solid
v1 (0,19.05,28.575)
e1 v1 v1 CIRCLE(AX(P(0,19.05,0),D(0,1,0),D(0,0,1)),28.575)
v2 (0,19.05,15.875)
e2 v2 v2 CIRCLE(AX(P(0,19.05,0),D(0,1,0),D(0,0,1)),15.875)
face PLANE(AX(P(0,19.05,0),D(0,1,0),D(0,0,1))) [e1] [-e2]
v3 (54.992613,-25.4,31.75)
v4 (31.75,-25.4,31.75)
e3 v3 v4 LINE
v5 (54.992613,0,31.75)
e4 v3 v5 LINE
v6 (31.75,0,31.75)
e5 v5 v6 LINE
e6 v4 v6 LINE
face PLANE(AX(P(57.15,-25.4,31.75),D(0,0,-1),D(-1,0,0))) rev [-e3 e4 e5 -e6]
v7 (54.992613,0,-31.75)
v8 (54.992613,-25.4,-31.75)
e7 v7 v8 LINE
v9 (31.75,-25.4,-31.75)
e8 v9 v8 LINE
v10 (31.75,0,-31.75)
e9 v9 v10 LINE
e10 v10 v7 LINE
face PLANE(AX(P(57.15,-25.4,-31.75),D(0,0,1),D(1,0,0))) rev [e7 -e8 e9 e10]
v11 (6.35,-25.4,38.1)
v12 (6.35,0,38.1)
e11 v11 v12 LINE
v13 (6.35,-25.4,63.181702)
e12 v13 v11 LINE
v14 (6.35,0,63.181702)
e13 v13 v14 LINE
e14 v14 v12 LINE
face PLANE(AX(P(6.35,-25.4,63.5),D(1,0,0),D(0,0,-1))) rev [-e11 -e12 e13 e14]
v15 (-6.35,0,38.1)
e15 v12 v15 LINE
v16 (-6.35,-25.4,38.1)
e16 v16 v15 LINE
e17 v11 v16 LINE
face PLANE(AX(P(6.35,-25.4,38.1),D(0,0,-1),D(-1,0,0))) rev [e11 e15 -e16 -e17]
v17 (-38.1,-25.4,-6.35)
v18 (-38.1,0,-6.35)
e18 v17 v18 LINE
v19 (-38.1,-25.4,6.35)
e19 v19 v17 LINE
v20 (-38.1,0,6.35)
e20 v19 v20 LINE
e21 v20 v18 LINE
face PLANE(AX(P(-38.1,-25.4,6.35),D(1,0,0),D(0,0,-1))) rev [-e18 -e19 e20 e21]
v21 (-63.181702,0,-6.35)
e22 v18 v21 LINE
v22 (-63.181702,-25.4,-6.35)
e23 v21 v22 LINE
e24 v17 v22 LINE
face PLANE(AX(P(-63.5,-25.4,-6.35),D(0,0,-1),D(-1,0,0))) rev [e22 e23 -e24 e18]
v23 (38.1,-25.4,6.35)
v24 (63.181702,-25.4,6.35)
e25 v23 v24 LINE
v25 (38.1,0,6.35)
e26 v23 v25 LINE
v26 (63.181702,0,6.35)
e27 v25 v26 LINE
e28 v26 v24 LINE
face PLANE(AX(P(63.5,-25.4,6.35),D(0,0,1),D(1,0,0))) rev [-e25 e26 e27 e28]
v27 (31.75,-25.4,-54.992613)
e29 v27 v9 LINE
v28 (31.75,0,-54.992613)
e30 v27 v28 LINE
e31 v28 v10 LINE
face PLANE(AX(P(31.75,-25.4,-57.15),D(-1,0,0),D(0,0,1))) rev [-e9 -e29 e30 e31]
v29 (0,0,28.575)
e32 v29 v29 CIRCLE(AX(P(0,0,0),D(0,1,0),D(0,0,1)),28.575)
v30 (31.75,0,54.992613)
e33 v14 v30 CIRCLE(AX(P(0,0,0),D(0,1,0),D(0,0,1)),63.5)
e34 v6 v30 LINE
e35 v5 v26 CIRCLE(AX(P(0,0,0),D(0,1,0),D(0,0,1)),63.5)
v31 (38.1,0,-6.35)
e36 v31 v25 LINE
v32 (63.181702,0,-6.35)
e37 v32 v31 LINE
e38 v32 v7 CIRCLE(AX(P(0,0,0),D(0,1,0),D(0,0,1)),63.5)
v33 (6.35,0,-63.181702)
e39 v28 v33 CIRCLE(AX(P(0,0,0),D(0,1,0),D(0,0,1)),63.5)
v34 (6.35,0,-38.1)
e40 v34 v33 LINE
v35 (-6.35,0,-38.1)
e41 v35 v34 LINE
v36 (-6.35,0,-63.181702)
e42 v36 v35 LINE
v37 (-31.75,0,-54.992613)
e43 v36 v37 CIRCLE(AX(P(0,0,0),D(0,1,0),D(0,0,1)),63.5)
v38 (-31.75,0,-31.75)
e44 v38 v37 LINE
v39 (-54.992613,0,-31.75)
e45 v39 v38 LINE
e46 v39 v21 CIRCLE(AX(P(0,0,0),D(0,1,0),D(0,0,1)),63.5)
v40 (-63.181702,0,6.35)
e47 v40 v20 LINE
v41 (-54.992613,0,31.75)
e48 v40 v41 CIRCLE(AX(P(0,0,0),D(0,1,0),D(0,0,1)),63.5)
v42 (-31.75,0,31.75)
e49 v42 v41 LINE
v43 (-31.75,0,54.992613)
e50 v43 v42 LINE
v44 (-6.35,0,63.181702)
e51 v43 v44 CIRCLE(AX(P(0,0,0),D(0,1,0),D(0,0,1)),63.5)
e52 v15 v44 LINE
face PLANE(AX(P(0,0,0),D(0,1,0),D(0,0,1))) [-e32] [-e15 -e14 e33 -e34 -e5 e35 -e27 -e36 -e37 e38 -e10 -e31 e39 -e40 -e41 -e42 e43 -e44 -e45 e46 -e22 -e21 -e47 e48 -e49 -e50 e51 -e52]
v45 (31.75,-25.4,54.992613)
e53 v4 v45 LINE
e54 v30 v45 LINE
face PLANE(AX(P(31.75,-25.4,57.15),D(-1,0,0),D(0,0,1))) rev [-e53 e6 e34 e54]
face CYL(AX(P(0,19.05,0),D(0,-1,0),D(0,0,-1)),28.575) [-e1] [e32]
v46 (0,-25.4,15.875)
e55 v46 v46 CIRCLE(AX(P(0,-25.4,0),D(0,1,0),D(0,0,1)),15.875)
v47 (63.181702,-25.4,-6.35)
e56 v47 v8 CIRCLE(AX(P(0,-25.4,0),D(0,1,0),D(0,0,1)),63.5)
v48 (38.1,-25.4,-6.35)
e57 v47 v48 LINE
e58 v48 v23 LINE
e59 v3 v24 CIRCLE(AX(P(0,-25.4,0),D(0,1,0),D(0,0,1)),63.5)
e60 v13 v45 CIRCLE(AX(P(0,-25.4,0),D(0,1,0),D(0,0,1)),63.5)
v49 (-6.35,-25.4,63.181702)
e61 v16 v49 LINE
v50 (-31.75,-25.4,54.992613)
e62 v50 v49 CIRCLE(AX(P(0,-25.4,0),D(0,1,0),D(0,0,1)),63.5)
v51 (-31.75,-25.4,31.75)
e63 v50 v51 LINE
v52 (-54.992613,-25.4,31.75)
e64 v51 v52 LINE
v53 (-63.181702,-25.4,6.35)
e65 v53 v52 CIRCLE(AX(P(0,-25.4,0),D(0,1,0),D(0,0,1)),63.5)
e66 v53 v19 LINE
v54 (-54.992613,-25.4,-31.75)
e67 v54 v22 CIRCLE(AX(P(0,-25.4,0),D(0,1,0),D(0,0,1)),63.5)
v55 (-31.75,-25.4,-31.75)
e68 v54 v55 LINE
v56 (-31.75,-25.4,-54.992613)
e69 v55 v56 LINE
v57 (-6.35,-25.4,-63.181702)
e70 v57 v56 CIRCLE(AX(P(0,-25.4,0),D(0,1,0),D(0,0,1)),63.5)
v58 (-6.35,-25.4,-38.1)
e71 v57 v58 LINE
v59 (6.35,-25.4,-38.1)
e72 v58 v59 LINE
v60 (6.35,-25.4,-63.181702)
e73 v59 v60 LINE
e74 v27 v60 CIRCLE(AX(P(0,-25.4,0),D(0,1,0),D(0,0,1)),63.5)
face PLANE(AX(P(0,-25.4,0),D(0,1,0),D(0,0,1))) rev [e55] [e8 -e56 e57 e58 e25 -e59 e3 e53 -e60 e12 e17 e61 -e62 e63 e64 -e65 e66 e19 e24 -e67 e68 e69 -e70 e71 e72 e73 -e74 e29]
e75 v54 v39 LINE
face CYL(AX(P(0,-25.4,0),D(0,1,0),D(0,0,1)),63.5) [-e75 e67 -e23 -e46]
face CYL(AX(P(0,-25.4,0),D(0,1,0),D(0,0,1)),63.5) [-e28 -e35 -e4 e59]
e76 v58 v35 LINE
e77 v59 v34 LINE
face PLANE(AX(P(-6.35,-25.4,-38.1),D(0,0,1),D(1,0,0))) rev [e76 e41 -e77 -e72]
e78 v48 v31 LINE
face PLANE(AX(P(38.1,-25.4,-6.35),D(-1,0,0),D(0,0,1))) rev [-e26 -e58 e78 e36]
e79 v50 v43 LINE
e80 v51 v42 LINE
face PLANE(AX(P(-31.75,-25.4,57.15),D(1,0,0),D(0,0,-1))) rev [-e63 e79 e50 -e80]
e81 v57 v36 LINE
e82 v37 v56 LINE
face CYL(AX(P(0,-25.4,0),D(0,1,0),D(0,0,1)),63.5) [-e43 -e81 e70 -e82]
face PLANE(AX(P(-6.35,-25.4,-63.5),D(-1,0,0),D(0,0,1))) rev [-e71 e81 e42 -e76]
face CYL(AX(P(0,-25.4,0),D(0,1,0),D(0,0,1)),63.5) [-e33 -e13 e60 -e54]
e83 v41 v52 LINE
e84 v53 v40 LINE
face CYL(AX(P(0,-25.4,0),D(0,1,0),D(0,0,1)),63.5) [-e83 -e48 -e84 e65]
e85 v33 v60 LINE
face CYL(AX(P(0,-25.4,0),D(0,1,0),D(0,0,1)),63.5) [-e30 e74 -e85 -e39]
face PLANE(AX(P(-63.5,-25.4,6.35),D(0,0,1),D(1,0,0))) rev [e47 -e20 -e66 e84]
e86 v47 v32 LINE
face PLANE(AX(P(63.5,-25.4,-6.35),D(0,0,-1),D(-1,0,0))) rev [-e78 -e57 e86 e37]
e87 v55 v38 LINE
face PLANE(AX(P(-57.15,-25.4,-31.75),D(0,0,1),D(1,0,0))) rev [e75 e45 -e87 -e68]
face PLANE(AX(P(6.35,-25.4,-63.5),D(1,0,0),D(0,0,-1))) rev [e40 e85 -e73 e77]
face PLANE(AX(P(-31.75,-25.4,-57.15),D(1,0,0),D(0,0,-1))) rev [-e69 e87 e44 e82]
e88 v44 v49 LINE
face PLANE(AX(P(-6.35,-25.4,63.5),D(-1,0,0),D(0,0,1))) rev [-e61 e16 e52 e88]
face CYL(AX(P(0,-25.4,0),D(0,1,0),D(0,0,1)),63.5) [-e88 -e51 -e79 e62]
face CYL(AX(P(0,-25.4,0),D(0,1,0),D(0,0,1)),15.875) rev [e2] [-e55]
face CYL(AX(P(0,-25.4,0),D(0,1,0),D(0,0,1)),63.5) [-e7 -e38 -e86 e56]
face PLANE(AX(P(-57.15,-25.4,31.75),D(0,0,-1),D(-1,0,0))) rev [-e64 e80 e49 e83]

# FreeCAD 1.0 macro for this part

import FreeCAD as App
import Part
import Sketcher
from FreeCAD import Vector
Q = App.Units.Quantity

doc = App.newDocument("Part")
body = doc.addObject("PartDesign::Body", "Body")

# Sketch on XZ plane
sketch1 = body.newObject("Sketcher::SketchObject", "Sketch")
sketch1.AttachmentSupport = (doc.getObject("XZ_Plane"), [""])
sketch1.MapMode = "FlatFace"
sketch1.addGeometry(Part.Circle(Vector(0, 0, 0), Vector(0, 0, 1), 64), False)
sketch1.addConstraint([
    Sketcher.Constraint("Coincident", 0, 3, -1, 1),
    Sketcher.Constraint("Diameter", 0, Q("5 in")),
])
pad1 = body.newObject("PartDesign::Pad", "Pad")
pad1.Profile = sketch1
pad1.Length = Q("1 in")

# Sketch on XZ plane
sketch2 = body.newObject("Sketcher::SketchObject", "Sketch001")
sketch2.AttachmentSupport = (doc.getObject("XZ_Plane"), [""])
sketch2.MapMode = "FlatFace"
sketch2.addGeometry(Part.Circle(Vector(0, 0, 0), Vector(0, 0, 1), 29), False)
sketch2.addConstraint([
    Sketcher.Constraint("Coincident", 0, 3, -1, 1),
    Sketcher.Constraint("Diameter", 0, Q("2.25 in")),
])
pad2 = body.newObject("PartDesign::Pad", "Pad001")
pad2.Profile = sketch2
pad2.Length = Q("0.75 in")
pad2.Reversed = True

# Sketch on XZ plane
sketch3 = body.newObject("Sketcher::SketchObject", "Sketch002")
sketch3.AttachmentSupport = (doc.getObject("XZ_Plane"), [""])
sketch3.MapMode = "FlatFace"
sketch3.addGeometry([
    Part.LineSegment(Vector(38, -6, 0), Vector(38, 6, 0)),  # 0
    Part.LineSegment(Vector(38, 6, 0), Vector(64, 6, 0)),  # 1
    Part.LineSegment(Vector(64, 6, 0), Vector(64, -6, 0)),  # 2
    Part.LineSegment(Vector(64, -6, 0), Vector(38, -6, 0)),  # 3
    Part.LineSegment(Vector(-6, -64, 0), Vector(-6, -38, 0)),  # 4
    Part.LineSegment(Vector(-6, -38, 0), Vector(6, -38, 0)),  # 5
    Part.LineSegment(Vector(6, -38, 0), Vector(6, -64, 0)),  # 6
    Part.LineSegment(Vector(6, -64, 0), Vector(-6, -64, 0)),  # 7
    Part.LineSegment(Vector(-6, 38, 0), Vector(-6, 64, 0)),  # 8
    Part.LineSegment(Vector(-6, 64, 0), Vector(6, 64, 0)),  # 9
    Part.LineSegment(Vector(6, 64, 0), Vector(6, 38, 0)),  # 10
    Part.LineSegment(Vector(6, 38, 0), Vector(-6, 38, 0)),  # 11
    Part.LineSegment(Vector(-64, -6, 0), Vector(-64, 6, 0)),  # 12
    Part.LineSegment(Vector(-64, 6, 0), Vector(-38, 6, 0)),  # 13
    Part.LineSegment(Vector(-38, 6, 0), Vector(-38, -6, 0)),  # 14
    Part.LineSegment(Vector(-38, -6, 0), Vector(-64, -6, 0)),  # 15
], False)
sketch3.addConstraint([
    Sketcher.Constraint("Coincident", 0, 2, 1, 1),
    Sketcher.Constraint("Coincident", 1, 2, 2, 1),
    Sketcher.Constraint("Coincident", 2, 2, 3, 1),
    Sketcher.Constraint("Coincident", 3, 2, 0, 1),
    Sketcher.Constraint("Coincident", 4, 2, 5, 1),
    Sketcher.Constraint("Coincident", 5, 2, 6, 1),
    Sketcher.Constraint("Coincident", 6, 2, 7, 1),
    Sketcher.Constraint("Coincident", 7, 2, 4, 1),
    Sketcher.Constraint("Coincident", 8, 2, 9, 1),
    Sketcher.Constraint("Coincident", 9, 2, 10, 1),
    Sketcher.Constraint("Coincident", 10, 2, 11, 1),
    Sketcher.Constraint("Coincident", 11, 2, 8, 1),
    Sketcher.Constraint("Coincident", 12, 2, 13, 1),
    Sketcher.Constraint("Coincident", 13, 2, 14, 1),
    Sketcher.Constraint("Coincident", 14, 2, 15, 1),
    Sketcher.Constraint("Coincident", 15, 2, 12, 1),
    Sketcher.Constraint("Vertical", 0),
    Sketcher.Constraint("Horizontal", 1),
    Sketcher.Constraint("Vertical", 2),
    Sketcher.Constraint("Horizontal", 3),
    Sketcher.Constraint("Vertical", 4),
    Sketcher.Constraint("Horizontal", 5),
    Sketcher.Constraint("Vertical", 6),
    Sketcher.Constraint("Horizontal", 7),
    Sketcher.Constraint("Vertical", 8),
    Sketcher.Constraint("Horizontal", 9),
    Sketcher.Constraint("Vertical", 10),
    Sketcher.Constraint("Horizontal", 11),
    Sketcher.Constraint("Vertical", 12),
    Sketcher.Constraint("Horizontal", 13),
    Sketcher.Constraint("Vertical", 14),
    Sketcher.Constraint("Horizontal", 15),
    Sketcher.Constraint("Symmetric", 6, 2, 8, 2, -1, 1),
    Sketcher.Constraint("Symmetric", 4, 2, 10, 2, -1, 1),
    Sketcher.Constraint("Symmetric", 2, 2, 12, 2, -1, 1),
    Sketcher.Constraint("Symmetric", 0, 2, 14, 2, -1, 1),
    Sketcher.Constraint("Horizontal", 1, 2, 12, 2),
    Sketcher.Constraint("Vertical", 7, 2, 8, 2),
    Sketcher.Constraint("Equal", 11, 0),
    Sketcher.Constraint("Equal", 15, 4),
    Sketcher.Constraint("DistanceX", 1, 1, 1, 2, Q("1 in")),
    Sketcher.Constraint("DistanceX", 5, 1, 5, 2, Q("0.5 in")),
    Sketcher.Constraint("DistanceY", 4, 2, 8, 2, Q("4 in")),
    Sketcher.Constraint("DistanceX", -1, 1, 0, 2, Q("1.5 in")),
])
pocket1 = body.newObject("PartDesign::Pocket", "Pocket")
pocket1.Profile = sketch3
pocket1.Type = "ThroughAll"
pocket1.Reversed = True

# Sketch on XZ plane
sketch4 = body.newObject("Sketcher::SketchObject", "Sketch003")
sketch4.AttachmentSupport = (doc.getObject("XZ_Plane"), [""])
sketch4.MapMode = "FlatFace"
sketch4.addGeometry([
    Part.LineSegment(Vector(-57, -57, 0), Vector(-57, -32, 0)),  # 0
    Part.LineSegment(Vector(-57, -32, 0), Vector(-32, -32, 0)),  # 1
    Part.LineSegment(Vector(-32, -32, 0), Vector(-32, -57, 0)),  # 2
    Part.LineSegment(Vector(-32, -57, 0), Vector(-57, -57, 0)),  # 3
    Part.LineSegment(Vector(32, -57, 0), Vector(32, -32, 0)),  # 4
    Part.LineSegment(Vector(32, -32, 0), Vector(57, -32, 0)),  # 5
    Part.LineSegment(Vector(57, -32, 0), Vector(57, -57, 0)),  # 6
    Part.LineSegment(Vector(57, -57, 0), Vector(32, -57, 0)),  # 7
    Part.LineSegment(Vector(32, 32, 0), Vector(32, 57, 0)),  # 8
    Part.LineSegment(Vector(32, 57, 0), Vector(57, 57, 0)),  # 9
    Part.LineSegment(Vector(57, 57, 0), Vector(57, 32, 0)),  # 10
    Part.LineSegment(Vector(57, 32, 0), Vector(32, 32, 0)),  # 11
    Part.LineSegment(Vector(-57, 32, 0), Vector(-57, 57, 0)),  # 12
    Part.LineSegment(Vector(-57, 57, 0), Vector(-32, 57, 0)),  # 13
    Part.LineSegment(Vector(-32, 57, 0), Vector(-32, 32, 0)),  # 14
    Part.LineSegment(Vector(-32, 32, 0), Vector(-57, 32, 0)),  # 15
], False)
sketch4.addConstraint([
    Sketcher.Constraint("Coincident", 0, 2, 1, 1),
    Sketcher.Constraint("Coincident", 1, 2, 2, 1),
    Sketcher.Constraint("Coincident", 2, 2, 3, 1),
    Sketcher.Constraint("Coincident", 3, 2, 0, 1),
    Sketcher.Constraint("Coincident", 4, 2, 5, 1),
    Sketcher.Constraint("Coincident", 5, 2, 6, 1),
    Sketcher.Constraint("Coincident", 6, 2, 7, 1),
    Sketcher.Constraint("Coincident", 7, 2, 4, 1),
    Sketcher.Constraint("Coincident", 8, 2, 9, 1),
    Sketcher.Constraint("Coincident", 9, 2, 10, 1),
    Sketcher.Constraint("Coincident", 10, 2, 11, 1),
    Sketcher.Constraint("Coincident", 11, 2, 8, 1),
    Sketcher.Constraint("Coincident", 12, 2, 13, 1),
    Sketcher.Constraint("Coincident", 13, 2, 14, 1),
    Sketcher.Constraint("Coincident", 14, 2, 15, 1),
    Sketcher.Constraint("Coincident", 15, 2, 12, 1),
    Sketcher.Constraint("Vertical", 0),
    Sketcher.Constraint("Horizontal", 1),
    Sketcher.Constraint("Vertical", 2),
    Sketcher.Constraint("Horizontal", 3),
    Sketcher.Constraint("Vertical", 4),
    Sketcher.Constraint("Horizontal", 5),
    Sketcher.Constraint("Vertical", 6),
    Sketcher.Constraint("Horizontal", 7),
    Sketcher.Constraint("Vertical", 8),
    Sketcher.Constraint("Horizontal", 9),
    Sketcher.Constraint("Vertical", 10),
    Sketcher.Constraint("Horizontal", 11),
    Sketcher.Constraint("Vertical", 12),
    Sketcher.Constraint("Horizontal", 13),
    Sketcher.Constraint("Vertical", 14),
    Sketcher.Constraint("Horizontal", 15),
    Sketcher.Constraint("Symmetric", 2, 2, 8, 2, -1, 1),
    Sketcher.Constraint("Symmetric", 0, 2, 10, 2, -1, 1),
    Sketcher.Constraint("Symmetric", 6, 2, 12, 2, -1, 1),
    Sketcher.Constraint("Symmetric", 4, 2, 14, 2, -1, 1),
    Sketcher.Constraint("Symmetric", 1, 2, 4, 2, -2),
    Sketcher.Constraint("Symmetric", 3, 2, 6, 2, -2),
    Sketcher.Constraint("Equal", 15, 0),
    Sketcher.Constraint("DistanceX", 1, 1, 1, 2, Q("1 in")),
    Sketcher.Constraint("DistanceX", 1, 2, 4, 2, Q("2.5 in")),
    Sketcher.Constraint("DistanceY", 4, 2, 8, 2, Q("3.5 in")),
])
pocket2 = body.newObject("PartDesign::Pocket", "Pocket001")
pocket2.Profile = sketch4
pocket2.Type = "ThroughAll"
pocket2.Reversed = True

# Sketch on XZ plane
sketch5 = body.newObject("Sketcher::SketchObject", "Sketch004")
sketch5.AttachmentSupport = (doc.getObject("XZ_Plane"), [""])
sketch5.MapMode = "FlatFace"
sketch5.AttachmentOffset = App.Placement(Vector(0, 0, -0.75 * 25.4), App.Rotation())
sketch5.addGeometry(Part.Circle(Vector(0, 0, 0), Vector(0, 0, 1), 16), False)
sketch5.addConstraint([
    Sketcher.Constraint("Coincident", 0, 3, -1, 1),
    Sketcher.Constraint("Diameter", 0, Q("1.25 in")),
])
pocket3 = body.newObject("PartDesign::Pocket", "Pocket002")
pocket3.Profile = sketch5
pocket3.Type = "ThroughAll"
pocket3.Reversed = True

doc.recompute()
